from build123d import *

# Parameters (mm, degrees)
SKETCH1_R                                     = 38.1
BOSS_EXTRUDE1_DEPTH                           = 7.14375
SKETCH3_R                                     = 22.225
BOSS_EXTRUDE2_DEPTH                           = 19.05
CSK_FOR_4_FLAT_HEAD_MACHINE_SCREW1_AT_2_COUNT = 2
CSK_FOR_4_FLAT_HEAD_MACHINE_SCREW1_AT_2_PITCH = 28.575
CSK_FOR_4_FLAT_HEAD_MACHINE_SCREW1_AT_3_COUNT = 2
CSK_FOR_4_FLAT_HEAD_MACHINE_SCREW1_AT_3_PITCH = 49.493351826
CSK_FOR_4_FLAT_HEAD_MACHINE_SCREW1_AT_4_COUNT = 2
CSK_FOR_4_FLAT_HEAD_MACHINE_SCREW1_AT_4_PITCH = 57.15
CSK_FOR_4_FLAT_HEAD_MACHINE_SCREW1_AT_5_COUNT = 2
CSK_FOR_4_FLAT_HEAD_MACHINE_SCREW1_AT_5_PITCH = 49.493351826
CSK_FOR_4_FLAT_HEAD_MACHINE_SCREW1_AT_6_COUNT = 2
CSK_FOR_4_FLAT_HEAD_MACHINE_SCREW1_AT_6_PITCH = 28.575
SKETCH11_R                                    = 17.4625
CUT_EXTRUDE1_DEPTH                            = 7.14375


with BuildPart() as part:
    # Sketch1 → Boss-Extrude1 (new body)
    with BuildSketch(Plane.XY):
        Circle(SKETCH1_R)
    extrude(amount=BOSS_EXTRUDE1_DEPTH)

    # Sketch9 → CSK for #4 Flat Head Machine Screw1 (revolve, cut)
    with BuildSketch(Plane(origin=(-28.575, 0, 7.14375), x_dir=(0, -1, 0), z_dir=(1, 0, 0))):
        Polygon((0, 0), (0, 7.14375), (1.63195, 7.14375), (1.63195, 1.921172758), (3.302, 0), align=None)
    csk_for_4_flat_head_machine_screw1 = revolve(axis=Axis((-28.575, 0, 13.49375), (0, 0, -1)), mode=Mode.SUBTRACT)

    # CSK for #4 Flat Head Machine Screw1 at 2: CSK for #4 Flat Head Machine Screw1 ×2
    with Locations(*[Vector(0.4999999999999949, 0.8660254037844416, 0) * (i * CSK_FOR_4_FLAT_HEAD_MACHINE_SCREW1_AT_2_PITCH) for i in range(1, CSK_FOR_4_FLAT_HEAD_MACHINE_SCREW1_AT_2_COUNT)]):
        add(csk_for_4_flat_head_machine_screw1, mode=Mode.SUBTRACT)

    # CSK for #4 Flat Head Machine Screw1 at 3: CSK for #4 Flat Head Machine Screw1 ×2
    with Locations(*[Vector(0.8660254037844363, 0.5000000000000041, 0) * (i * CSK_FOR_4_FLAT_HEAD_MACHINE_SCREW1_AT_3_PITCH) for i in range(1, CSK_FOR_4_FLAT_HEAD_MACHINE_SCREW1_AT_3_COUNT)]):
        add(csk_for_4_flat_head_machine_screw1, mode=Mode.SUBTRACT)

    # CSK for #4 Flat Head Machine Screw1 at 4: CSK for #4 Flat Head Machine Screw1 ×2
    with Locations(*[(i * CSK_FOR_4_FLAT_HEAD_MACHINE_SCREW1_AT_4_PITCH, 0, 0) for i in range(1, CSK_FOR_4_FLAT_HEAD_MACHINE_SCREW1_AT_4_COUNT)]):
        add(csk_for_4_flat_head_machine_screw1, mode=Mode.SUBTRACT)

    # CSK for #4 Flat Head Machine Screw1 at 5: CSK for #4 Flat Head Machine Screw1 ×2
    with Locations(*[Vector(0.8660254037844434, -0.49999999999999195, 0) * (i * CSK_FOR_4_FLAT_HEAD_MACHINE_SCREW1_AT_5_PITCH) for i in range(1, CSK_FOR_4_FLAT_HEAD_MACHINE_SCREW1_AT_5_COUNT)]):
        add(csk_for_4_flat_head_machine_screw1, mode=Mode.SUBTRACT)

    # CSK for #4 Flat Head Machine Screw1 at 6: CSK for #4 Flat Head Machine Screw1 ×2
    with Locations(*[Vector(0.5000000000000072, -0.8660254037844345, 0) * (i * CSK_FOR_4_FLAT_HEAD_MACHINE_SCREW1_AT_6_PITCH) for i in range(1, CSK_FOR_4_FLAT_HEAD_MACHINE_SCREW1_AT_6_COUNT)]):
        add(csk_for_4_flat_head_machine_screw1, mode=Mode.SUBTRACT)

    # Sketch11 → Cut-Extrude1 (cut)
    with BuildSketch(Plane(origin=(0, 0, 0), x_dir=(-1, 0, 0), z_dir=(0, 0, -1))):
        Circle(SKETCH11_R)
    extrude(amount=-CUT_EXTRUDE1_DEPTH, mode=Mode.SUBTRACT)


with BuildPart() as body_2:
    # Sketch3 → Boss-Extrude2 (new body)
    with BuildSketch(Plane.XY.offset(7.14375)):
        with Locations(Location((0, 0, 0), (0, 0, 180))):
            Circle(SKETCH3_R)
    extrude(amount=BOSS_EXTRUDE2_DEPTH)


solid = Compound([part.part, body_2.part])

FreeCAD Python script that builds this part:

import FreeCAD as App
import Part
import Sketcher
Q = App.Units.Quantity


def add_polygon(sketch, points):
    """Adds a closed chain of lines whose ends are joined by coincident constraints."""
    first, n = sketch.GeometryCount, len(points)
    for a, b in zip(points, points[1:] + points[:1]):
        sketch.addGeometry(Part.LineSegment(App.Vector(*a, 0), App.Vector(*b, 0)), False)
    for i in range(n):
        sketch.addConstraint(Sketcher.Constraint("Coincident", first + i, 2, first + (i + 1) % n, 1))

doc = App.newDocument("Part")
params = doc.addObject("Spreadsheet::Sheet", "Params")
for row, (alias, value) in enumerate([
    ("sketch1_diameter", "3 in"),
    ("pad1_length", "0.28125 in"),
    ("sketch2_width", "0.13 in"),
    ("sketch2_height", "0.28125 in"),
    ("groove_angle", "360 deg"),
    ("linearpattern_pitch", "1.125 in"),
    ("linearpattern2_pitch", "49.493352 mm"),
    ("linearpattern3_pitch", "2.25 in"),
    ("linearpattern4_pitch", "49.493352 mm"),
    ("linearpattern5_pitch", "1.125 in"),
    ("sketch3_diameter", "1.375 in"),
    ("pocket1_length", "0.28125 in"),
    ("sketch4_diameter", "1.75 in"),
    ("pad2_length", "0.75 in"),
], start=1):
    params.set(f"A{row}", alias)
    params.set(f"B{row}", "=" + value)
    params.setAlias(f"B{row}", alias)

body = doc.addObject("PartDesign::Body", "Body")

# Sketch on XY plane
sketch1 = body.newObject("Sketcher::SketchObject", "Sketch")
sketch1.AttachmentSupport = (doc.getObject("XY_Plane"), [""])
sketch1.MapMode = "FlatFace"
sketch1.addGeometry(Part.Circle(App.Vector(0, 0, 0), App.Vector(0, 0, 1), 38.1), False)
sketch1.addConstraint(Sketcher.Constraint("Coincident", 0, 3, -1, 1))
sketch1.addConstraint(Sketcher.Constraint("Diameter", 0, Q("3 in")))
sketch1.setExpression("Constraints[1]", "Params.sketch1_diameter")
pad1 = body.newObject("PartDesign::Pad", "Pad")
pad1.Profile = sketch1
pad1.setExpression("Length", "Params.pad1_length")

# Sketch on YZ plane
sketch2 = body.newObject("Sketcher::SketchObject", "Sketch001")
sketch2.AttachmentSupport = (doc.getObject("YZ_Plane"), [""])
sketch2.MapMode = "FlatFace"
sketch2.AttachmentOffset = App.Placement(App.Vector(0, 0, -1.125 * 25.4), App.Rotation())
add_polygon(sketch2, [(0, 0), (0, 7.14375), (-3.302, 7.14375), (-1.63195, 5.222577), (-1.63195, 0)])  # lines 0-4
sketch2.addConstraint(Sketcher.Constraint("Vertical", 0))
sketch2.addConstraint(Sketcher.Constraint("Horizontal", 1))
sketch2.addConstraint(Sketcher.Constraint("Vertical", 3))
sketch2.addConstraint(Sketcher.Constraint("Horizontal", 4))
sketch2.addConstraint(Sketcher.Constraint("Coincident", 4, 2, -1, 1))
sketch2.addConstraint(Sketcher.Constraint("Angle", 2, Q("-49 deg")))
sketch2.addConstraint(Sketcher.Constraint("DistanceX", 1, 2, 1, 1, Q("0.13 in")))
sketch2.addConstraint(Sketcher.Constraint("DistanceY", 0, 1, 0, 2, Q("0.28125 in")))
sketch2.addConstraint(Sketcher.Constraint("DistanceX", 4, 1, 4, 2, 1.63195))
sketch2.setExpression("Constraints[11]", "Params.sketch2_width")
sketch2.setExpression("Constraints[12]", "Params.sketch2_height")
groove = body.newObject("PartDesign::Groove", "Groove")
groove.Profile = sketch2
groove.ReferenceAxis = (sketch2, ["V_Axis"])
groove.setExpression("Angle", "Params.groove_angle")
doc.recompute()

datumline = body.newObject("PartDesign::Line", "DatumLine")
datumline.Placement = App.Placement(App.Vector(0, 0, 0), App.Rotation(App.Vector(0, 0, 1), App.Vector(0.5, 0.866025404, 0)))
linearpattern = body.newObject("PartDesign::LinearPattern", "LinearPattern")
linearpattern.Originals = [groove]
linearpattern.Direction = (datumline, [""])
linearpattern.Mode = "offset"
linearpattern.setExpression("Offset", "Params.linearpattern_pitch")
linearpattern.Occurrences = 2
body.Tip = linearpattern
doc.recompute()

datumline2 = body.newObject("PartDesign::Line", "DatumLine001")
datumline2.Placement = App.Placement(App.Vector(0, 0, 0), App.Rotation(App.Vector(0, 0, 1), App.Vector(0.866025404, 0.5, 0)))
linearpattern2 = body.newObject("PartDesign::LinearPattern", "LinearPattern001")
linearpattern2.Originals = [groove]
linearpattern2.Direction = (datumline2, [""])
linearpattern2.Mode = "offset"
linearpattern2.setExpression("Offset", "Params.linearpattern2_pitch")
linearpattern2.Occurrences = 2
body.Tip = linearpattern2
doc.recompute()

linearpattern3 = body.newObject("PartDesign::LinearPattern", "LinearPattern002")
linearpattern3.Originals = [groove]
linearpattern3.Direction = (doc.getObject("X_Axis"), [""])
linearpattern3.Mode = "offset"
linearpattern3.setExpression("Offset", "Params.linearpattern3_pitch")
linearpattern3.Occurrences = 2
body.Tip = linearpattern3
doc.recompute()

datumline3 = body.newObject("PartDesign::Line", "DatumLine002")
datumline3.Placement = App.Placement(App.Vector(0, 0, 0), App.Rotation(App.Vector(0, 0, 1), App.Vector(0.866025404, -0.5, 0)))
linearpattern4 = body.newObject("PartDesign::LinearPattern", "LinearPattern003")
linearpattern4.Originals = [groove]
linearpattern4.Direction = (datumline3, [""])
linearpattern4.Mode = "offset"
linearpattern4.setExpression("Offset", "Params.linearpattern4_pitch")
linearpattern4.Occurrences = 2
body.Tip = linearpattern4
doc.recompute()

datumline4 = body.newObject("PartDesign::Line", "DatumLine003")
datumline4.Placement = App.Placement(App.Vector(0, 0, 0), App.Rotation(App.Vector(0, 0, 1), App.Vector(0.5, -0.866025404, 0)))
linearpattern5 = body.newObject("PartDesign::LinearPattern", "LinearPattern004")
linearpattern5.Originals = [groove]
linearpattern5.Direction = (datumline4, [""])
linearpattern5.Mode = "offset"
linearpattern5.setExpression("Offset", "Params.linearpattern5_pitch")
linearpattern5.Occurrences = 2
body.Tip = linearpattern5

# Sketch on XY plane
sketch3 = body.newObject("Sketcher::SketchObject", "Sketch002")
sketch3.AttachmentSupport = (doc.getObject("XY_Plane"), [""])
sketch3.MapMode = "FlatFace"
sketch3.addGeometry(Part.Circle(App.Vector(0, 0, 0), App.Vector(0, 0, 1), 17.4625), False)
sketch3.addConstraint(Sketcher.Constraint("Coincident", 0, 3, -1, 1))
sketch3.addConstraint(Sketcher.Constraint("Diameter", 0, Q("1.375 in")))
sketch3.setExpression("Constraints[1]", "Params.sketch3_diameter")
pocket1 = body.newObject("PartDesign::Pocket", "Pocket")
pocket1.Profile = sketch3
pocket1.setExpression("Length", "Params.pocket1_length")
pocket1.Reversed = True
body2 = doc.addObject("PartDesign::Body", "Body001")

# Sketch on XY plane
sketch4 = body2.newObject("Sketcher::SketchObject", "Sketch003")
sketch4.AttachmentSupport = (doc.getObject("XY_Plane001"), [""])
sketch4.MapMode = "FlatFace"
sketch4.AttachmentOffset = App.Placement(App.Vector(0, 0, 0.28125 * 25.4), App.Rotation())
sketch4.addGeometry(Part.Circle(App.Vector(0, 0, 0), App.Vector(0, 0, 1), 22.225), False)
sketch4.addConstraint(Sketcher.Constraint("Coincident", 0, 3, -1, 1))
sketch4.addConstraint(Sketcher.Constraint("Diameter", 0, Q("1.75 in")))
sketch4.setExpression("Constraints[1]", "Params.sketch4_diameter")
pad2 = body2.newObject("PartDesign::Pad", "Pad001")
pad2.Profile = sketch4
pad2.setExpression("Length", "Params.pad2_length")

doc.recompute()
